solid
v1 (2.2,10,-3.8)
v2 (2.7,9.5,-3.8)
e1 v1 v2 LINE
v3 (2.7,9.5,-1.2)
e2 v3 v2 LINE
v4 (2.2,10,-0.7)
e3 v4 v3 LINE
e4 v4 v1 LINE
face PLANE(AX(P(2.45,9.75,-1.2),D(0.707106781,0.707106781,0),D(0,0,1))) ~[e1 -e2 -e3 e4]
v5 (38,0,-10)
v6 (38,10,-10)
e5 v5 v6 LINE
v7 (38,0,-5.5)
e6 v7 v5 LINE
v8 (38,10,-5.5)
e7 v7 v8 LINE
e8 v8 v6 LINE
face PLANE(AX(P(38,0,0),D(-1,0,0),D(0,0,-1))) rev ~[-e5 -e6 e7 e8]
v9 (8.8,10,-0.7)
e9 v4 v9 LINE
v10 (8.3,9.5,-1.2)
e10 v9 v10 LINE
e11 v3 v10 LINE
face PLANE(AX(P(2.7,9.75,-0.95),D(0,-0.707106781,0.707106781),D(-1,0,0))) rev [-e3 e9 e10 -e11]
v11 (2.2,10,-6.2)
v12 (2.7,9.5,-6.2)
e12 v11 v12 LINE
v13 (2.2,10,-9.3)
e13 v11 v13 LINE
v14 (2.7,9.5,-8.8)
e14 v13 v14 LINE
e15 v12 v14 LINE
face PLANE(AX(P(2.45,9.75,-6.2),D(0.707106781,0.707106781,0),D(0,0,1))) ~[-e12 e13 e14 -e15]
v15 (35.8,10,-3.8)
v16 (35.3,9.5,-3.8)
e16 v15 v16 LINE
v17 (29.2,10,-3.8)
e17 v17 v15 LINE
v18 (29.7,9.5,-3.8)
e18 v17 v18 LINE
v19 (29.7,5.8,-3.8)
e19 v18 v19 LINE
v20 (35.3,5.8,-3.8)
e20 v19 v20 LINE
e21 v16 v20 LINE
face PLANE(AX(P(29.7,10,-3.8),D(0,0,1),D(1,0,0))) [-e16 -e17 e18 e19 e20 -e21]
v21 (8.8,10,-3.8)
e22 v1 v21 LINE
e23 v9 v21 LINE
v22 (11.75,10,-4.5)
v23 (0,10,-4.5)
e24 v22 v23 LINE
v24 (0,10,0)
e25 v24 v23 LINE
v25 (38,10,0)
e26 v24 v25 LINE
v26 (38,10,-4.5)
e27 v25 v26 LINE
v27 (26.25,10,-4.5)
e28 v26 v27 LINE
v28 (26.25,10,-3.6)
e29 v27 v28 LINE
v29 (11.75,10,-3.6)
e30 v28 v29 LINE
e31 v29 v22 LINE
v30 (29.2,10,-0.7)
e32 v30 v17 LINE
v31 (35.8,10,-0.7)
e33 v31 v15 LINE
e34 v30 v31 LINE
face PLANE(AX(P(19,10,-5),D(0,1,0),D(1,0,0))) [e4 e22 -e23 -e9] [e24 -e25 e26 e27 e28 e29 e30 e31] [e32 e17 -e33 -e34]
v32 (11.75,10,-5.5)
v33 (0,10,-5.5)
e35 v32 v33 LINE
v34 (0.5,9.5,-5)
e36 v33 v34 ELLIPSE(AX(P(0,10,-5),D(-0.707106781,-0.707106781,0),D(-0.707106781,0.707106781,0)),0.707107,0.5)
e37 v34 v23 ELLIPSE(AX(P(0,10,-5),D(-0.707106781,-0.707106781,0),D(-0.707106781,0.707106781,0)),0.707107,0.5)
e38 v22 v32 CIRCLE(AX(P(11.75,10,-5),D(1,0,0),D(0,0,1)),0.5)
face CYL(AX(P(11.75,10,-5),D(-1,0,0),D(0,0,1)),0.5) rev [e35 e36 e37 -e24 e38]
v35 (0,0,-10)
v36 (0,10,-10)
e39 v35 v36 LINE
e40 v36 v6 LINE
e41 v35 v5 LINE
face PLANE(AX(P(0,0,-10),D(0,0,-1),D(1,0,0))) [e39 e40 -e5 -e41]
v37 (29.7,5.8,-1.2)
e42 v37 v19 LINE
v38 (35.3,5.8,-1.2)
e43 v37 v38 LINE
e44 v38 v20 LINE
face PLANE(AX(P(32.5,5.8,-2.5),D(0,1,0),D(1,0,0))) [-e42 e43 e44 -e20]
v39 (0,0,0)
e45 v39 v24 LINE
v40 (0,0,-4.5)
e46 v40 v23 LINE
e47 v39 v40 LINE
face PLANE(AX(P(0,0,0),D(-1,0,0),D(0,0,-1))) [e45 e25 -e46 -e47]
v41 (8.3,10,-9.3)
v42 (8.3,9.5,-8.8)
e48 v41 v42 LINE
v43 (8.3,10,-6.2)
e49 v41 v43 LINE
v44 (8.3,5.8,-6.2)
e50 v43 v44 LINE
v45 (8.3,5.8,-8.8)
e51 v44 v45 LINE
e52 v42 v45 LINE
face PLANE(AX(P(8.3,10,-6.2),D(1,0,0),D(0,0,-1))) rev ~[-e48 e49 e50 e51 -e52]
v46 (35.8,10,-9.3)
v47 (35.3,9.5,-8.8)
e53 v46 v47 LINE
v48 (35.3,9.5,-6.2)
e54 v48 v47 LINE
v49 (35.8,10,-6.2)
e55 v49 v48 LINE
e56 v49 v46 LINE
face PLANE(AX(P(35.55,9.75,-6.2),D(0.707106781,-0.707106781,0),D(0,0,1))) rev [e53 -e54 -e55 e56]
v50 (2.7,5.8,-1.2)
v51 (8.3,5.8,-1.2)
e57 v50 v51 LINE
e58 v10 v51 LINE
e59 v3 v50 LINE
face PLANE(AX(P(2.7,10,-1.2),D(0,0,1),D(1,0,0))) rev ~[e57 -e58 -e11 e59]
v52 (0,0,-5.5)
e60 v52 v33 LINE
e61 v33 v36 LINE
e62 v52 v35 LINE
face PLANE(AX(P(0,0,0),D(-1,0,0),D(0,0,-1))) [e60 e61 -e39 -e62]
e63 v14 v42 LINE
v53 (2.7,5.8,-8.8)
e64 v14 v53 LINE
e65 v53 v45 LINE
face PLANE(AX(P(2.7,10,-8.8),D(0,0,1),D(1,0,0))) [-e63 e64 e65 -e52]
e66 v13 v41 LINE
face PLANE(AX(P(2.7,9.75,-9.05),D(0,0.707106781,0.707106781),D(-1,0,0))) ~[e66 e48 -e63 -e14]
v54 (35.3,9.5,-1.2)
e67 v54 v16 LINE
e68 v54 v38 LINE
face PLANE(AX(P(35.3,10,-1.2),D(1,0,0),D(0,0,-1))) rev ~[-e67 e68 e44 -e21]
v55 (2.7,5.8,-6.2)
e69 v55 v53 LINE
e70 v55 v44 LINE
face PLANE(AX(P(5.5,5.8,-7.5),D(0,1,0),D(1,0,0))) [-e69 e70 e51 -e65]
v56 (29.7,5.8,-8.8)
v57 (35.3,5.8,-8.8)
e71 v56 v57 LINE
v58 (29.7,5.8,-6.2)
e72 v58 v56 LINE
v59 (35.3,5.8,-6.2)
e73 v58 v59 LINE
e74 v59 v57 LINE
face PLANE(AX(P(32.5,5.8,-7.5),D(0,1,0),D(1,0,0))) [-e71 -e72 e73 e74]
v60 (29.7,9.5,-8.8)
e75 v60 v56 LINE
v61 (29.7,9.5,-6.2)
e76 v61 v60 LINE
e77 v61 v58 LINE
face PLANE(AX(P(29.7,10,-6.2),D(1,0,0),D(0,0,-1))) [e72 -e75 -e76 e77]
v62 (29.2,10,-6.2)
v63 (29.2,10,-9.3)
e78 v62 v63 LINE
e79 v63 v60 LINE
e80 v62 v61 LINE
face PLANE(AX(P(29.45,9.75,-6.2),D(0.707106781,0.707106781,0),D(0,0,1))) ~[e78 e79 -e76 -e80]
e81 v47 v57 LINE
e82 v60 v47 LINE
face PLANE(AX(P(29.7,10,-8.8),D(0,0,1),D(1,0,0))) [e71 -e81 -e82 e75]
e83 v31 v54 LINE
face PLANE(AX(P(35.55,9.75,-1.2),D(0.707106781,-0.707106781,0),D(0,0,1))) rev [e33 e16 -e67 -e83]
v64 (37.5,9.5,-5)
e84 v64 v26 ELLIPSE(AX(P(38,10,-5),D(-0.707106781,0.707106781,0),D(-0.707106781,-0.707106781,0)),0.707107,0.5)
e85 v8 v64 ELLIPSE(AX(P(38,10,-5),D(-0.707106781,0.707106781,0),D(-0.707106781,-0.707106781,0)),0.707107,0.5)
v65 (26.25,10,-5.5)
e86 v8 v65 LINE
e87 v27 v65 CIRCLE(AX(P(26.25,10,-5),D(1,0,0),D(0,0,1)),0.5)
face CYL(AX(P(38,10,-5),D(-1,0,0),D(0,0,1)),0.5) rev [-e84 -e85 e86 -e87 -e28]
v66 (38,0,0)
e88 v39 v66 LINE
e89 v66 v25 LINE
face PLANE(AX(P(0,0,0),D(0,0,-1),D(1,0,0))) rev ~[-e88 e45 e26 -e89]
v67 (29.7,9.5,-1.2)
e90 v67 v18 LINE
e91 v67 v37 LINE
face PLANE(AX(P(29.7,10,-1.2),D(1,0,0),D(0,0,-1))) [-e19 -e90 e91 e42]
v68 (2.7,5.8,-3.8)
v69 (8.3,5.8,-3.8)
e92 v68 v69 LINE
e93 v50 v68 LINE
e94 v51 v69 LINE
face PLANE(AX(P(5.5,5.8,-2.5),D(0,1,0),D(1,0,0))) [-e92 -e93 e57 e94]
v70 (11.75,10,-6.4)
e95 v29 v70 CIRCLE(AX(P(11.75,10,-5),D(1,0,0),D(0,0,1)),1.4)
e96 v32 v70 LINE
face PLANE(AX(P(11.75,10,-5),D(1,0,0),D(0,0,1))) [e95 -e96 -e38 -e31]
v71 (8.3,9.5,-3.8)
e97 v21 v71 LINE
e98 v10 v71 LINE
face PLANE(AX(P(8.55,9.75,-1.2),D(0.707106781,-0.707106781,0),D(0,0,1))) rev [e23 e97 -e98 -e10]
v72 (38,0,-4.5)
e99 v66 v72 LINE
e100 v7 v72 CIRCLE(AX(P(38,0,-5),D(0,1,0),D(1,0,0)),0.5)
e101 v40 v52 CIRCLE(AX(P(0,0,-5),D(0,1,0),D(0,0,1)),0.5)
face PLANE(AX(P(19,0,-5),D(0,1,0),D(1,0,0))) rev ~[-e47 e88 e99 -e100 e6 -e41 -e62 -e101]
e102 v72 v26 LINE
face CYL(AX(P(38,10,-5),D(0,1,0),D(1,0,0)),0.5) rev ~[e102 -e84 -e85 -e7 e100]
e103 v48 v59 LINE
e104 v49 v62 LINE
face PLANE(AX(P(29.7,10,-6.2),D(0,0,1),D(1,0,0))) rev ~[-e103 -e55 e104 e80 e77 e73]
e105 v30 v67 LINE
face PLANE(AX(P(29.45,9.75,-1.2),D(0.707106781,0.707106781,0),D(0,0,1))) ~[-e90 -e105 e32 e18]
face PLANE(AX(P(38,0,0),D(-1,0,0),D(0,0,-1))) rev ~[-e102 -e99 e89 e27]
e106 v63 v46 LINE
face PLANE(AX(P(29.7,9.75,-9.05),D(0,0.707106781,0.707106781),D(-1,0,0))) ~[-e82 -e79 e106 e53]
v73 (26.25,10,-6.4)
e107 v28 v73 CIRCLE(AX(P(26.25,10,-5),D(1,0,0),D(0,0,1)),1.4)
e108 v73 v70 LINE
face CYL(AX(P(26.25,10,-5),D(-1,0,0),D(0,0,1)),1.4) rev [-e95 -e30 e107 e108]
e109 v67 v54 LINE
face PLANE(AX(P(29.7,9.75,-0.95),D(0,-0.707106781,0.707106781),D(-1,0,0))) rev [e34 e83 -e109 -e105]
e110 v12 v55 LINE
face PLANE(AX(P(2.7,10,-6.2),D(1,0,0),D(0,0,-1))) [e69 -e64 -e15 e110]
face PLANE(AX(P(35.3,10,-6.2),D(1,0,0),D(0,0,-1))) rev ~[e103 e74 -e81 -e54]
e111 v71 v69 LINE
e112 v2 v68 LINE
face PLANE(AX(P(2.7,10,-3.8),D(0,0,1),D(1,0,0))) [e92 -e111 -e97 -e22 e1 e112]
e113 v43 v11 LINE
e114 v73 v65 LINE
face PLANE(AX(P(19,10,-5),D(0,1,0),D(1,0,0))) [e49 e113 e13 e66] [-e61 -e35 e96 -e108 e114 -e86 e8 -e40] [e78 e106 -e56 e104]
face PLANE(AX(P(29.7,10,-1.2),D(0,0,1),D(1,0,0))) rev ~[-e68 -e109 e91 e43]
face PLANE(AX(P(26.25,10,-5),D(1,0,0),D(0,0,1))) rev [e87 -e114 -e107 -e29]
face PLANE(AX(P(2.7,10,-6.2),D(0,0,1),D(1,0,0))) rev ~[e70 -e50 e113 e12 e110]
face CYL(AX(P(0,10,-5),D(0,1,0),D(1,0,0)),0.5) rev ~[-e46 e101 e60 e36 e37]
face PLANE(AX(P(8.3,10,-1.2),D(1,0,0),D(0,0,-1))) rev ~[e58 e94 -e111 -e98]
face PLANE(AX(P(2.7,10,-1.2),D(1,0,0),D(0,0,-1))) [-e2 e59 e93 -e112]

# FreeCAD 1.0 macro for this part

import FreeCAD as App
import Part
import Sketcher
Q = App.Units.Quantity


def edges_at(feature, points):
    """Names of the edges that pass closest to the given points."""
    edges = feature.Shape.Edges
    near = lambda p: min(range(len(edges)), key=lambda i: edges[i].distToShape(Part.Vertex(*p))[0])
    return sorted({f"Edge{near(p) + 1}" for p in points})

doc = App.newDocument("Part")
params = doc.addObject("Spreadsheet::Sheet", "Params")
for row, (alias, value) in enumerate([
    ("sketch1_width", "38 mm"),
    ("sketch1_height", "10 mm"),
    ("pad1_length", "10 mm"),
    ("sketch2_width", "38 mm"),
    ("sketch2_width2", "14.5 mm"),
    ("sketch2_height", "0.5 mm"),
    ("sketch2_height2", "0.9 mm"),
    ("groove_angle", "360 deg"),
    ("sketch3_diameter", "1 mm"),
    ("sketch4_width", "5.6 mm"),
    ("sketch4_height", "2.6 mm"),
    ("pocket2_length", "4.2 mm"),
    ("chamfer_size", "0.5 mm"),
], start=1):
    params.set(f"A{row}", alias)
    params.set(f"B{row}", "=" + value)
    params.setAlias(f"B{row}", alias)

body = doc.addObject("PartDesign::Body", "Body")

sketch1 = body.newObject("Sketcher::SketchObject", "Sketch")
sketch1.AttachmentSupport = (doc.getObject("XZ_Plane"), [""])
sketch1.MapMode = "FlatFace"
sketch1.addGeometry([
    Part.LineSegment(App.Vector(0, -10, 0), App.Vector(0, 0, 0)),
    Part.LineSegment(App.Vector(0, 0, 0), App.Vector(38, 0, 0)),
    Part.LineSegment(App.Vector(38, 0, 0), App.Vector(38, -10, 0)),
    Part.LineSegment(App.Vector(38, -10, 0), App.Vector(0, -10, 0)),
], False)
sketch1.addConstraint([
    Sketcher.Constraint("Coincident", 0, 2, 1, 1),
    Sketcher.Constraint("Coincident", 1, 2, 2, 1),
    Sketcher.Constraint("Coincident", 2, 2, 3, 1),
    Sketcher.Constraint("Coincident", 3, 2, 0, 1),
    Sketcher.Constraint("Vertical", 0),
    Sketcher.Constraint("Horizontal", 1),
    Sketcher.Constraint("Vertical", 2),
    Sketcher.Constraint("Horizontal", 3),
    Sketcher.Constraint("Coincident", 0, 2, -1, 1),
    Sketcher.Constraint("DistanceX", 1, 1, 1, 2, Q("38 mm")),
    Sketcher.Constraint("DistanceY", 0, 1, 0, 2, Q("10 mm")),
])
sketch1.setExpression("Constraints[9]", "Params.sketch1_width")
sketch1.setExpression("Constraints[10]", "Params.sketch1_height")
pad1 = body.newObject("PartDesign::Pad", "Pad")
pad1.Profile = sketch1
pad1.setExpression("Length", "Params.pad1_length")
pad1.Reversed = True

sketch2 = body.newObject("Sketcher::SketchObject", "Sketch001")
sketch2.AttachmentSupport = (doc.getObject("XZ_Plane"), [""])
sketch2.MapMode = "FlatFace"
sketch2.AttachmentOffset = App.Placement(App.Vector(0, 0, -10), App.Rotation())
sketch2.addGeometry([
    Part.LineSegment(App.Vector(38, -5, 0), App.Vector(0, -5, 0)),
    Part.LineSegment(App.Vector(0, -5, 0), App.Vector(0, -4.5, 0)),
    Part.LineSegment(App.Vector(0, -4.5, 0), App.Vector(11.8, -4.5, 0)),
    Part.LineSegment(App.Vector(11.8, -4.5, 0), App.Vector(11.8, -3.6, 0)),
    Part.LineSegment(App.Vector(11.8, -3.6, 0), App.Vector(26.2, -3.6, 0)),
    Part.LineSegment(App.Vector(26.2, -3.6, 0), App.Vector(26.2, -4.5, 0)),
    Part.LineSegment(App.Vector(26.2, -4.5, 0), App.Vector(38, -4.5, 0)),
    Part.LineSegment(App.Vector(38, -4.5, 0), App.Vector(38, -5, 0)),
], False)
sketch2.addGeometry(Part.LineSegment(App.Vector(0, -5, 0), App.Vector(38, -5, 0)), True)
sketch2.addConstraint([
    Sketcher.Constraint("Coincident", 0, 2, 1, 1),
    Sketcher.Constraint("Coincident", 1, 2, 2, 1),
    Sketcher.Constraint("Coincident", 2, 2, 3, 1),
    Sketcher.Constraint("Coincident", 3, 2, 4, 1),
    Sketcher.Constraint("Coincident", 4, 2, 5, 1),
    Sketcher.Constraint("Coincident", 5, 2, 6, 1),
    Sketcher.Constraint("Coincident", 6, 2, 7, 1),
    Sketcher.Constraint("Coincident", 7, 2, 0, 1),
    Sketcher.Constraint("Horizontal", 0),
    Sketcher.Constraint("Vertical", 1),
    Sketcher.Constraint("Horizontal", 2),
    Sketcher.Constraint("Vertical", 3),
    Sketcher.Constraint("Horizontal", 4),
    Sketcher.Constraint("Vertical", 5),
    Sketcher.Constraint("Horizontal", 6),
    Sketcher.Constraint("Vertical", 7),
    Sketcher.Constraint("Horizontal", 8),
    Sketcher.Constraint("Coincident", 8, 1, 0, 2),
    Sketcher.Constraint("PointOnObject", 0, 2, -2),
    Sketcher.Constraint("Horizontal", 2, 2, 5, 2),
    Sketcher.Constraint("Vertical", 6, 2, 8, 2),
    Sketcher.Constraint("Equal", 2, 6),
    Sketcher.Constraint("DistanceX", 0, 2, 0, 1, Q("38 mm")),
    Sketcher.Constraint("DistanceX", 4, 1, 4, 2, Q("14.5 mm")),
    Sketcher.Constraint("DistanceY", 1, 1, 1, 2, Q("0.5 mm")),
    Sketcher.Constraint("DistanceY", 3, 1, 3, 2, Q("0.9 mm")),
    Sketcher.Constraint("DistanceY", 0, 2, -1, 1, Q("5 mm")),
])
sketch2.setExpression("Constraints[22]", "Params.sketch2_width")
sketch2.setExpression("Constraints[23]", "Params.sketch2_width2")
sketch2.setExpression("Constraints[24]", "Params.sketch2_height")
sketch2.setExpression("Constraints[25]", "Params.sketch2_height2")
groove = body.newObject("PartDesign::Groove", "Groove")
groove.Profile = sketch2
groove.ReferenceAxis = (sketch2, ["Axis0"])
groove.setExpression("Angle", "Params.groove_angle")

sketch3 = body.newObject("Sketcher::SketchObject", "Sketch002")
sketch3.AttachmentSupport = (doc.getObject("XZ_Plane"), [""])
sketch3.MapMode = "FlatFace"
sketch3.AttachmentOffset = App.Placement(App.Vector(0, 0, -10), App.Rotation())
sketch3.addGeometry([
    Part.Circle(App.Vector(0, -5, 0), App.Vector(0, 0, 1), 0.5),
    Part.Circle(App.Vector(38, -5, 0), App.Vector(0, 0, 1), 0.5),
], False)
sketch3.addConstraint([
    Sketcher.Constraint("Equal", 0, 1),
    Sketcher.Constraint("PointOnObject", 0, 3, -2),
    Sketcher.Constraint("Horizontal", 0, 3, 1, 3),
    Sketcher.Constraint("Diameter", 0, Q("1 mm")),
    Sketcher.Constraint("DistanceY", 0, 3, -1, 1, Q("5 mm")),
    Sketcher.Constraint("DistanceX", -1, 1, 1, 3, Q("38 mm")),
])
sketch3.setExpression("Constraints[3]", "Params.sketch3_diameter")
pocket1 = body.newObject("PartDesign::Pocket", "Pocket")
pocket1.Profile = sketch3
pocket1.Type = "ThroughAll"
pocket1.Reversed = True

sketch4 = body.newObject("Sketcher::SketchObject", "Sketch003")
sketch4.AttachmentSupport = (doc.getObject("XZ_Plane"), [""])
sketch4.MapMode = "FlatFace"
sketch4.AttachmentOffset = App.Placement(App.Vector(0, 0, -10), App.Rotation())
sketch4.addGeometry([
    Part.LineSegment(App.Vector(2.7, -8.8, 0), App.Vector(2.7, -6.2, 0)),
    Part.LineSegment(App.Vector(2.7, -6.2, 0), App.Vector(8.3, -6.2, 0)),
    Part.LineSegment(App.Vector(8.3, -6.2, 0), App.Vector(8.3, -8.8, 0)),
    Part.LineSegment(App.Vector(8.3, -8.8, 0), App.Vector(2.7, -8.8, 0)),
    Part.LineSegment(App.Vector(2.7, -3.8, 0), App.Vector(2.7, -1.2, 0)),
    Part.LineSegment(App.Vector(2.7, -1.2, 0), App.Vector(8.3, -1.2, 0)),
    Part.LineSegment(App.Vector(8.3, -1.2, 0), App.Vector(8.3, -3.8, 0)),
    Part.LineSegment(App.Vector(8.3, -3.8, 0), App.Vector(2.7, -3.8, 0)),
    Part.LineSegment(App.Vector(29.7, -8.8, 0), App.Vector(29.7, -6.2, 0)),
    Part.LineSegment(App.Vector(29.7, -6.2, 0), App.Vector(35.3, -6.2, 0)),
    Part.LineSegment(App.Vector(35.3, -6.2, 0), App.Vector(35.3, -8.8, 0)),
    Part.LineSegment(App.Vector(35.3, -8.8, 0), App.Vector(29.7, -8.8, 0)),
    Part.LineSegment(App.Vector(29.7, -3.8, 0), App.Vector(29.7, -1.2, 0)),
    Part.LineSegment(App.Vector(29.7, -1.2, 0), App.Vector(35.3, -1.2, 0)),
    Part.LineSegment(App.Vector(35.3, -1.2, 0), App.Vector(35.3, -3.8, 0)),
    Part.LineSegment(App.Vector(35.3, -3.8, 0), App.Vector(29.7, -3.8, 0)),
], False)
sketch4.addConstraint([
    Sketcher.Constraint("Coincident", 0, 2, 1, 1),
    Sketcher.Constraint("Coincident", 1, 2, 2, 1),
    Sketcher.Constraint("Coincident", 2, 2, 3, 1),
    Sketcher.Constraint("Coincident", 3, 2, 0, 1),
    Sketcher.Constraint("Coincident", 4, 2, 5, 1),
    Sketcher.Constraint("Coincident", 5, 2, 6, 1),
    Sketcher.Constraint("Coincident", 6, 2, 7, 1),
    Sketcher.Constraint("Coincident", 7, 2, 4, 1),
    Sketcher.Constraint("Coincident", 8, 2, 9, 1),
    Sketcher.Constraint("Coincident", 9, 2, 10, 1),
    Sketcher.Constraint("Coincident", 10, 2, 11, 1),
    Sketcher.Constraint("Coincident", 11, 2, 8, 1),
    Sketcher.Constraint("Coincident", 12, 2, 13, 1),
    Sketcher.Constraint("Coincident", 13, 2, 14, 1),
    Sketcher.Constraint("Coincident", 14, 2, 15, 1),
    Sketcher.Constraint("Coincident", 15, 2, 12, 1),
    Sketcher.Constraint("Vertical", 0),
    Sketcher.Constraint("Horizontal", 1),
    Sketcher.Constraint("Vertical", 2),
    Sketcher.Constraint("Horizontal", 3),
    Sketcher.Constraint("Vertical", 4),
    Sketcher.Constraint("Horizontal", 5),
    Sketcher.Constraint("Vertical", 6),
    Sketcher.Constraint("Horizontal", 7),
    Sketcher.Constraint("Vertical", 8),
    Sketcher.Constraint("Horizontal", 9),
    Sketcher.Constraint("Vertical", 10),
    Sketcher.Constraint("Horizontal", 11),
    Sketcher.Constraint("Vertical", 12),
    Sketcher.Constraint("Horizontal", 13),
    Sketcher.Constraint("Vertical", 14),
    Sketcher.Constraint("Horizontal", 15),
    Sketcher.Constraint("Horizontal", 1, 2, 8, 2),
    Sketcher.Constraint("Horizontal", 3, 2, 10, 2),
    Sketcher.Constraint("Horizontal", 5, 2, 12, 2),
    Sketcher.Constraint("Horizontal", 7, 2, 14, 2),
    Sketcher.Constraint("Vertical", 3, 2, 4, 2),
    Sketcher.Constraint("Vertical", 2, 2, 5, 2),
    Sketcher.Constraint("Vertical", 11, 2, 12, 2),
    Sketcher.Constraint("Vertical", 10, 2, 13, 2),
    Sketcher.Constraint("Equal", 7, 9),
    Sketcher.Constraint("Equal", 2, 4),
    Sketcher.Constraint("DistanceX", 1, 1, 1, 2, Q("5.6 mm")),
    Sketcher.Constraint("DistanceY", 0, 1, 0, 2, Q("2.6 mm")),
    Sketcher.Constraint("DistanceY", 0, 2, 4, 2, Q("5 mm")),
    Sketcher.Constraint("DistanceX", 0, 2, 8, 2, Q("27 mm")),
    Sketcher.Constraint("DistanceX", -1, 1, 0, 2, Q("2.7 mm")),
    Sketcher.Constraint("DistanceY", 0, 2, -1, 1, Q("6.2 mm")),
])
sketch4.setExpression("Constraints[42]", "Params.sketch4_width")
sketch4.setExpression("Constraints[43]", "Params.sketch4_height")
pocket2 = body.newObject("PartDesign::Pocket", "Pocket001")
pocket2.Profile = sketch4
pocket2.setExpression("Length", "Params.pocket2_length")
pocket2.Reversed = True
doc.recompute()

chamfer = body.newObject("PartDesign::Chamfer", "Chamfer")
chamfer.Base = (pocket2, edges_at(pocket2, [
    (35.3, 10, -2.5),
    (32.5, 10, -1.2),
    (29.7, 10, -2.5),
    (35.3, 10, -7.5),
    (29.7, 10, -7.5),
    (32.5, 10, -8.8),
    (8.3, 10, -2.5),
    (5.5, 10, -1.2),
    (2.7, 10, -2.5),
    (2.7, 10, -7.5),
    (5.5, 10, -8.8),
]))
chamfer.setExpression("Size", "Params.chamfer_size")

doc.recompute()
